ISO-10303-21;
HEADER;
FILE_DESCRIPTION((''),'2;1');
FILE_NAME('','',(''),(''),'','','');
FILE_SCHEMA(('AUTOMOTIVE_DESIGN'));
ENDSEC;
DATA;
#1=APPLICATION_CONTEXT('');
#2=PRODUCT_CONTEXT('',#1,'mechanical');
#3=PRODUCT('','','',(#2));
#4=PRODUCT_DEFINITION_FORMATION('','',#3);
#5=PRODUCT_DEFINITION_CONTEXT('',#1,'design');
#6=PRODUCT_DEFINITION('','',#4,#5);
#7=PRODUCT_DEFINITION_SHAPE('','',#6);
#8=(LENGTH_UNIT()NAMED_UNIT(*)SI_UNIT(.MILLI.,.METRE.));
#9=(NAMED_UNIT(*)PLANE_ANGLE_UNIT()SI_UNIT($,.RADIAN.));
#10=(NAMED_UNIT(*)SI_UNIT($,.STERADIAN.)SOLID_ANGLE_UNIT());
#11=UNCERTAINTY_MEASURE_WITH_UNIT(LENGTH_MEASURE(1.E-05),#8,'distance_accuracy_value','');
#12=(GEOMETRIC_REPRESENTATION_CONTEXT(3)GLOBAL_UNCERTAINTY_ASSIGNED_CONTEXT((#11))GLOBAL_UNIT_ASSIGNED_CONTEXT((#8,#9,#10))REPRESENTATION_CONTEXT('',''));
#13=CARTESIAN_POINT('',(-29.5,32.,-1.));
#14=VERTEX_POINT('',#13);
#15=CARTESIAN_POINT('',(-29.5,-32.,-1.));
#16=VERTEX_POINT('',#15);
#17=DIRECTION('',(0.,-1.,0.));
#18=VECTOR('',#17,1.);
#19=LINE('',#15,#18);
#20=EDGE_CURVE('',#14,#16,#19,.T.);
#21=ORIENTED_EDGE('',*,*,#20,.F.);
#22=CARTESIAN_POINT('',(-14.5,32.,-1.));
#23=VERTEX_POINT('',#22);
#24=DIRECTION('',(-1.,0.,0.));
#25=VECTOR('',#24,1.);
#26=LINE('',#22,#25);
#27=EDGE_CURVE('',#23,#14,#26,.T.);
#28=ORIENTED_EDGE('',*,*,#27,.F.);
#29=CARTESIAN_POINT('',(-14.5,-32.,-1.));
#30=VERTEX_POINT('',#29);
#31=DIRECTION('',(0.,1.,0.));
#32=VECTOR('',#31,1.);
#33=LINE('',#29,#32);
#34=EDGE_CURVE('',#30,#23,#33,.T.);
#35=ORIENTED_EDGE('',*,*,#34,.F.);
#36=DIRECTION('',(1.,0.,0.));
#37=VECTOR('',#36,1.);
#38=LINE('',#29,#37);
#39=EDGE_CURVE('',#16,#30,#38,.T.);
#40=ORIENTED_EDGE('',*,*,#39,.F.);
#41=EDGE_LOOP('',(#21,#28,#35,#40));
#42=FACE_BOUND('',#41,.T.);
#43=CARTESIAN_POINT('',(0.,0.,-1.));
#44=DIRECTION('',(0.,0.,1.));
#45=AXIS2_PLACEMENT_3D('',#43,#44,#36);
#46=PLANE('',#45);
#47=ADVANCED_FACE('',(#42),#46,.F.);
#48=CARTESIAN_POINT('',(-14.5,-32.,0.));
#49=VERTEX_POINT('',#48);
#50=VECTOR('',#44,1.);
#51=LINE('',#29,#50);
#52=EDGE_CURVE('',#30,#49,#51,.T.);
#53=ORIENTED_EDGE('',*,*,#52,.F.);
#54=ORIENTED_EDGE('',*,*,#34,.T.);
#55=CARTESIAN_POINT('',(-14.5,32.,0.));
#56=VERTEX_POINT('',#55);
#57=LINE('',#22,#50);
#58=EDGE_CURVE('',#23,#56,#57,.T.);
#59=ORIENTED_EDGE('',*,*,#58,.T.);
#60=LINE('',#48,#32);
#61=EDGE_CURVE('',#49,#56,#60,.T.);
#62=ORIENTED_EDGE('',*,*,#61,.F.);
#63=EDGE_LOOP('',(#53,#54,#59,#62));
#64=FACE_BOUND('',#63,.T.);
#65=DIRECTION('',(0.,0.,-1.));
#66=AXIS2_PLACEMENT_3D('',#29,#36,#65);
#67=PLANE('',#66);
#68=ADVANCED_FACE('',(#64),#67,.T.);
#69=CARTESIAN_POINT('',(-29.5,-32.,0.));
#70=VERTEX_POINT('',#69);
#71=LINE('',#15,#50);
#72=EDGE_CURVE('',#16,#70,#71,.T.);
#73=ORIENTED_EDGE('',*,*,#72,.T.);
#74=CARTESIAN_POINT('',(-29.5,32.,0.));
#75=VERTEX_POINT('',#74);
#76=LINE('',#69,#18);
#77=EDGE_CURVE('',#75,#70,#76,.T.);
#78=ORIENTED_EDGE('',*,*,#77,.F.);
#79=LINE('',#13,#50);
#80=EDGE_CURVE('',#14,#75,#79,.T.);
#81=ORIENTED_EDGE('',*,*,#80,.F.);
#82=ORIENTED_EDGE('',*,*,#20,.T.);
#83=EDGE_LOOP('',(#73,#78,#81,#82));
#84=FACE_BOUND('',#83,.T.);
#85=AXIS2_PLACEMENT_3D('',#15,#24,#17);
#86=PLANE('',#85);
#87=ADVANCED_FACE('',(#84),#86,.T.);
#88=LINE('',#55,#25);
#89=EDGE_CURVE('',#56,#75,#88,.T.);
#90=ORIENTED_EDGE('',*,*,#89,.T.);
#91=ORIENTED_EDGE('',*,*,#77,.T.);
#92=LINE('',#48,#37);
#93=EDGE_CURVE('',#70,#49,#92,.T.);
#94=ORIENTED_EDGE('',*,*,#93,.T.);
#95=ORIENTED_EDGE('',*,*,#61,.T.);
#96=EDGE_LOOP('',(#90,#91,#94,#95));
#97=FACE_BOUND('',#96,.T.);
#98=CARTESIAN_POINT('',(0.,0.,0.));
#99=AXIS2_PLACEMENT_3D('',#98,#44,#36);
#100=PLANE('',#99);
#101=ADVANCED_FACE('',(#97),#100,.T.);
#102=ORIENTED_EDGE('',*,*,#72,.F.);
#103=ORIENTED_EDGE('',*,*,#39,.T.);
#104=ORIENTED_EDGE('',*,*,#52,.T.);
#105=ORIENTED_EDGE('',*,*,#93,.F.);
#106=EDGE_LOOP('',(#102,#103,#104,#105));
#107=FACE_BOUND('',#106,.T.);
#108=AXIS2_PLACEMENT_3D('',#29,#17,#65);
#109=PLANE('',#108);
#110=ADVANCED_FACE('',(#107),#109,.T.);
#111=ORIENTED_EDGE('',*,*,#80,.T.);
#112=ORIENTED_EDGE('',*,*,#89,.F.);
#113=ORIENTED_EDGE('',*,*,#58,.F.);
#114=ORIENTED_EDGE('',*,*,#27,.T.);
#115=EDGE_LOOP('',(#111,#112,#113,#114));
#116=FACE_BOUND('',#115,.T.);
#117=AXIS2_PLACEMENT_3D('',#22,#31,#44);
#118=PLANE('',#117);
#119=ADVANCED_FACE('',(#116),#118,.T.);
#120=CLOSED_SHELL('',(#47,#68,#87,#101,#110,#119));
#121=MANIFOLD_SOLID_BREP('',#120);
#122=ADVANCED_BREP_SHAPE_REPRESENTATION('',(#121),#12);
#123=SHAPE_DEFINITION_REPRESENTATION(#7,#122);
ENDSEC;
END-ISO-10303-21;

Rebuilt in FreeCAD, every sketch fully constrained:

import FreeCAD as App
import Part
import Sketcher


def add_polygon(sketch, points):
    """Adds a closed chain of lines whose ends are joined by coincident constraints."""
    first, n = sketch.GeometryCount, len(points)
    for a, b in zip(points, points[1:] + points[:1]):
        sketch.addGeometry(Part.LineSegment(App.Vector(*a, 0), App.Vector(*b, 0)), False)
    for i in range(n):
        sketch.addConstraint(Sketcher.Constraint("Coincident", first + i, 2, first + (i + 1) % n, 1))

doc = App.newDocument("Part")
body = doc.addObject("PartDesign::Body", "Body")

# Sketch on XY plane
sketch1 = body.newObject("Sketcher::SketchObject", "Sketch")
sketch1.AttachmentSupport = (doc.getObject("XY_Plane"), [""])
sketch1.MapMode = "FlatFace"
add_polygon(sketch1, [(-30, 32), (-30, -32), (-14, -32), (-14, 32)])  # lines 0-3
sketch1.addConstraint(Sketcher.Constraint("Vertical", 0))
sketch1.addConstraint(Sketcher.Constraint("Horizontal", 1))
sketch1.addConstraint(Sketcher.Constraint("Vertical", 2))
sketch1.addConstraint(Sketcher.Constraint("Horizontal", 3))
sketch1.addConstraint(Sketcher.Constraint("DistanceX", 1, 1, 1, 2, 15.0))
sketch1.addConstraint(Sketcher.Constraint("DistanceY", 0, 2, 0, 1, 64.0))
sketch1.addConstraint(Sketcher.Constraint("DistanceY", 0, 2, -1, 1, 32.0))
sketch1.addConstraint(Sketcher.Constraint("DistanceX", 0, 2, -1, 1, 29.5))
pad1 = body.newObject("PartDesign::Pad", "Pad")
pad1.Profile = sketch1
pad1.Length = 1
pad1.Reversed = True

doc.recompute()
